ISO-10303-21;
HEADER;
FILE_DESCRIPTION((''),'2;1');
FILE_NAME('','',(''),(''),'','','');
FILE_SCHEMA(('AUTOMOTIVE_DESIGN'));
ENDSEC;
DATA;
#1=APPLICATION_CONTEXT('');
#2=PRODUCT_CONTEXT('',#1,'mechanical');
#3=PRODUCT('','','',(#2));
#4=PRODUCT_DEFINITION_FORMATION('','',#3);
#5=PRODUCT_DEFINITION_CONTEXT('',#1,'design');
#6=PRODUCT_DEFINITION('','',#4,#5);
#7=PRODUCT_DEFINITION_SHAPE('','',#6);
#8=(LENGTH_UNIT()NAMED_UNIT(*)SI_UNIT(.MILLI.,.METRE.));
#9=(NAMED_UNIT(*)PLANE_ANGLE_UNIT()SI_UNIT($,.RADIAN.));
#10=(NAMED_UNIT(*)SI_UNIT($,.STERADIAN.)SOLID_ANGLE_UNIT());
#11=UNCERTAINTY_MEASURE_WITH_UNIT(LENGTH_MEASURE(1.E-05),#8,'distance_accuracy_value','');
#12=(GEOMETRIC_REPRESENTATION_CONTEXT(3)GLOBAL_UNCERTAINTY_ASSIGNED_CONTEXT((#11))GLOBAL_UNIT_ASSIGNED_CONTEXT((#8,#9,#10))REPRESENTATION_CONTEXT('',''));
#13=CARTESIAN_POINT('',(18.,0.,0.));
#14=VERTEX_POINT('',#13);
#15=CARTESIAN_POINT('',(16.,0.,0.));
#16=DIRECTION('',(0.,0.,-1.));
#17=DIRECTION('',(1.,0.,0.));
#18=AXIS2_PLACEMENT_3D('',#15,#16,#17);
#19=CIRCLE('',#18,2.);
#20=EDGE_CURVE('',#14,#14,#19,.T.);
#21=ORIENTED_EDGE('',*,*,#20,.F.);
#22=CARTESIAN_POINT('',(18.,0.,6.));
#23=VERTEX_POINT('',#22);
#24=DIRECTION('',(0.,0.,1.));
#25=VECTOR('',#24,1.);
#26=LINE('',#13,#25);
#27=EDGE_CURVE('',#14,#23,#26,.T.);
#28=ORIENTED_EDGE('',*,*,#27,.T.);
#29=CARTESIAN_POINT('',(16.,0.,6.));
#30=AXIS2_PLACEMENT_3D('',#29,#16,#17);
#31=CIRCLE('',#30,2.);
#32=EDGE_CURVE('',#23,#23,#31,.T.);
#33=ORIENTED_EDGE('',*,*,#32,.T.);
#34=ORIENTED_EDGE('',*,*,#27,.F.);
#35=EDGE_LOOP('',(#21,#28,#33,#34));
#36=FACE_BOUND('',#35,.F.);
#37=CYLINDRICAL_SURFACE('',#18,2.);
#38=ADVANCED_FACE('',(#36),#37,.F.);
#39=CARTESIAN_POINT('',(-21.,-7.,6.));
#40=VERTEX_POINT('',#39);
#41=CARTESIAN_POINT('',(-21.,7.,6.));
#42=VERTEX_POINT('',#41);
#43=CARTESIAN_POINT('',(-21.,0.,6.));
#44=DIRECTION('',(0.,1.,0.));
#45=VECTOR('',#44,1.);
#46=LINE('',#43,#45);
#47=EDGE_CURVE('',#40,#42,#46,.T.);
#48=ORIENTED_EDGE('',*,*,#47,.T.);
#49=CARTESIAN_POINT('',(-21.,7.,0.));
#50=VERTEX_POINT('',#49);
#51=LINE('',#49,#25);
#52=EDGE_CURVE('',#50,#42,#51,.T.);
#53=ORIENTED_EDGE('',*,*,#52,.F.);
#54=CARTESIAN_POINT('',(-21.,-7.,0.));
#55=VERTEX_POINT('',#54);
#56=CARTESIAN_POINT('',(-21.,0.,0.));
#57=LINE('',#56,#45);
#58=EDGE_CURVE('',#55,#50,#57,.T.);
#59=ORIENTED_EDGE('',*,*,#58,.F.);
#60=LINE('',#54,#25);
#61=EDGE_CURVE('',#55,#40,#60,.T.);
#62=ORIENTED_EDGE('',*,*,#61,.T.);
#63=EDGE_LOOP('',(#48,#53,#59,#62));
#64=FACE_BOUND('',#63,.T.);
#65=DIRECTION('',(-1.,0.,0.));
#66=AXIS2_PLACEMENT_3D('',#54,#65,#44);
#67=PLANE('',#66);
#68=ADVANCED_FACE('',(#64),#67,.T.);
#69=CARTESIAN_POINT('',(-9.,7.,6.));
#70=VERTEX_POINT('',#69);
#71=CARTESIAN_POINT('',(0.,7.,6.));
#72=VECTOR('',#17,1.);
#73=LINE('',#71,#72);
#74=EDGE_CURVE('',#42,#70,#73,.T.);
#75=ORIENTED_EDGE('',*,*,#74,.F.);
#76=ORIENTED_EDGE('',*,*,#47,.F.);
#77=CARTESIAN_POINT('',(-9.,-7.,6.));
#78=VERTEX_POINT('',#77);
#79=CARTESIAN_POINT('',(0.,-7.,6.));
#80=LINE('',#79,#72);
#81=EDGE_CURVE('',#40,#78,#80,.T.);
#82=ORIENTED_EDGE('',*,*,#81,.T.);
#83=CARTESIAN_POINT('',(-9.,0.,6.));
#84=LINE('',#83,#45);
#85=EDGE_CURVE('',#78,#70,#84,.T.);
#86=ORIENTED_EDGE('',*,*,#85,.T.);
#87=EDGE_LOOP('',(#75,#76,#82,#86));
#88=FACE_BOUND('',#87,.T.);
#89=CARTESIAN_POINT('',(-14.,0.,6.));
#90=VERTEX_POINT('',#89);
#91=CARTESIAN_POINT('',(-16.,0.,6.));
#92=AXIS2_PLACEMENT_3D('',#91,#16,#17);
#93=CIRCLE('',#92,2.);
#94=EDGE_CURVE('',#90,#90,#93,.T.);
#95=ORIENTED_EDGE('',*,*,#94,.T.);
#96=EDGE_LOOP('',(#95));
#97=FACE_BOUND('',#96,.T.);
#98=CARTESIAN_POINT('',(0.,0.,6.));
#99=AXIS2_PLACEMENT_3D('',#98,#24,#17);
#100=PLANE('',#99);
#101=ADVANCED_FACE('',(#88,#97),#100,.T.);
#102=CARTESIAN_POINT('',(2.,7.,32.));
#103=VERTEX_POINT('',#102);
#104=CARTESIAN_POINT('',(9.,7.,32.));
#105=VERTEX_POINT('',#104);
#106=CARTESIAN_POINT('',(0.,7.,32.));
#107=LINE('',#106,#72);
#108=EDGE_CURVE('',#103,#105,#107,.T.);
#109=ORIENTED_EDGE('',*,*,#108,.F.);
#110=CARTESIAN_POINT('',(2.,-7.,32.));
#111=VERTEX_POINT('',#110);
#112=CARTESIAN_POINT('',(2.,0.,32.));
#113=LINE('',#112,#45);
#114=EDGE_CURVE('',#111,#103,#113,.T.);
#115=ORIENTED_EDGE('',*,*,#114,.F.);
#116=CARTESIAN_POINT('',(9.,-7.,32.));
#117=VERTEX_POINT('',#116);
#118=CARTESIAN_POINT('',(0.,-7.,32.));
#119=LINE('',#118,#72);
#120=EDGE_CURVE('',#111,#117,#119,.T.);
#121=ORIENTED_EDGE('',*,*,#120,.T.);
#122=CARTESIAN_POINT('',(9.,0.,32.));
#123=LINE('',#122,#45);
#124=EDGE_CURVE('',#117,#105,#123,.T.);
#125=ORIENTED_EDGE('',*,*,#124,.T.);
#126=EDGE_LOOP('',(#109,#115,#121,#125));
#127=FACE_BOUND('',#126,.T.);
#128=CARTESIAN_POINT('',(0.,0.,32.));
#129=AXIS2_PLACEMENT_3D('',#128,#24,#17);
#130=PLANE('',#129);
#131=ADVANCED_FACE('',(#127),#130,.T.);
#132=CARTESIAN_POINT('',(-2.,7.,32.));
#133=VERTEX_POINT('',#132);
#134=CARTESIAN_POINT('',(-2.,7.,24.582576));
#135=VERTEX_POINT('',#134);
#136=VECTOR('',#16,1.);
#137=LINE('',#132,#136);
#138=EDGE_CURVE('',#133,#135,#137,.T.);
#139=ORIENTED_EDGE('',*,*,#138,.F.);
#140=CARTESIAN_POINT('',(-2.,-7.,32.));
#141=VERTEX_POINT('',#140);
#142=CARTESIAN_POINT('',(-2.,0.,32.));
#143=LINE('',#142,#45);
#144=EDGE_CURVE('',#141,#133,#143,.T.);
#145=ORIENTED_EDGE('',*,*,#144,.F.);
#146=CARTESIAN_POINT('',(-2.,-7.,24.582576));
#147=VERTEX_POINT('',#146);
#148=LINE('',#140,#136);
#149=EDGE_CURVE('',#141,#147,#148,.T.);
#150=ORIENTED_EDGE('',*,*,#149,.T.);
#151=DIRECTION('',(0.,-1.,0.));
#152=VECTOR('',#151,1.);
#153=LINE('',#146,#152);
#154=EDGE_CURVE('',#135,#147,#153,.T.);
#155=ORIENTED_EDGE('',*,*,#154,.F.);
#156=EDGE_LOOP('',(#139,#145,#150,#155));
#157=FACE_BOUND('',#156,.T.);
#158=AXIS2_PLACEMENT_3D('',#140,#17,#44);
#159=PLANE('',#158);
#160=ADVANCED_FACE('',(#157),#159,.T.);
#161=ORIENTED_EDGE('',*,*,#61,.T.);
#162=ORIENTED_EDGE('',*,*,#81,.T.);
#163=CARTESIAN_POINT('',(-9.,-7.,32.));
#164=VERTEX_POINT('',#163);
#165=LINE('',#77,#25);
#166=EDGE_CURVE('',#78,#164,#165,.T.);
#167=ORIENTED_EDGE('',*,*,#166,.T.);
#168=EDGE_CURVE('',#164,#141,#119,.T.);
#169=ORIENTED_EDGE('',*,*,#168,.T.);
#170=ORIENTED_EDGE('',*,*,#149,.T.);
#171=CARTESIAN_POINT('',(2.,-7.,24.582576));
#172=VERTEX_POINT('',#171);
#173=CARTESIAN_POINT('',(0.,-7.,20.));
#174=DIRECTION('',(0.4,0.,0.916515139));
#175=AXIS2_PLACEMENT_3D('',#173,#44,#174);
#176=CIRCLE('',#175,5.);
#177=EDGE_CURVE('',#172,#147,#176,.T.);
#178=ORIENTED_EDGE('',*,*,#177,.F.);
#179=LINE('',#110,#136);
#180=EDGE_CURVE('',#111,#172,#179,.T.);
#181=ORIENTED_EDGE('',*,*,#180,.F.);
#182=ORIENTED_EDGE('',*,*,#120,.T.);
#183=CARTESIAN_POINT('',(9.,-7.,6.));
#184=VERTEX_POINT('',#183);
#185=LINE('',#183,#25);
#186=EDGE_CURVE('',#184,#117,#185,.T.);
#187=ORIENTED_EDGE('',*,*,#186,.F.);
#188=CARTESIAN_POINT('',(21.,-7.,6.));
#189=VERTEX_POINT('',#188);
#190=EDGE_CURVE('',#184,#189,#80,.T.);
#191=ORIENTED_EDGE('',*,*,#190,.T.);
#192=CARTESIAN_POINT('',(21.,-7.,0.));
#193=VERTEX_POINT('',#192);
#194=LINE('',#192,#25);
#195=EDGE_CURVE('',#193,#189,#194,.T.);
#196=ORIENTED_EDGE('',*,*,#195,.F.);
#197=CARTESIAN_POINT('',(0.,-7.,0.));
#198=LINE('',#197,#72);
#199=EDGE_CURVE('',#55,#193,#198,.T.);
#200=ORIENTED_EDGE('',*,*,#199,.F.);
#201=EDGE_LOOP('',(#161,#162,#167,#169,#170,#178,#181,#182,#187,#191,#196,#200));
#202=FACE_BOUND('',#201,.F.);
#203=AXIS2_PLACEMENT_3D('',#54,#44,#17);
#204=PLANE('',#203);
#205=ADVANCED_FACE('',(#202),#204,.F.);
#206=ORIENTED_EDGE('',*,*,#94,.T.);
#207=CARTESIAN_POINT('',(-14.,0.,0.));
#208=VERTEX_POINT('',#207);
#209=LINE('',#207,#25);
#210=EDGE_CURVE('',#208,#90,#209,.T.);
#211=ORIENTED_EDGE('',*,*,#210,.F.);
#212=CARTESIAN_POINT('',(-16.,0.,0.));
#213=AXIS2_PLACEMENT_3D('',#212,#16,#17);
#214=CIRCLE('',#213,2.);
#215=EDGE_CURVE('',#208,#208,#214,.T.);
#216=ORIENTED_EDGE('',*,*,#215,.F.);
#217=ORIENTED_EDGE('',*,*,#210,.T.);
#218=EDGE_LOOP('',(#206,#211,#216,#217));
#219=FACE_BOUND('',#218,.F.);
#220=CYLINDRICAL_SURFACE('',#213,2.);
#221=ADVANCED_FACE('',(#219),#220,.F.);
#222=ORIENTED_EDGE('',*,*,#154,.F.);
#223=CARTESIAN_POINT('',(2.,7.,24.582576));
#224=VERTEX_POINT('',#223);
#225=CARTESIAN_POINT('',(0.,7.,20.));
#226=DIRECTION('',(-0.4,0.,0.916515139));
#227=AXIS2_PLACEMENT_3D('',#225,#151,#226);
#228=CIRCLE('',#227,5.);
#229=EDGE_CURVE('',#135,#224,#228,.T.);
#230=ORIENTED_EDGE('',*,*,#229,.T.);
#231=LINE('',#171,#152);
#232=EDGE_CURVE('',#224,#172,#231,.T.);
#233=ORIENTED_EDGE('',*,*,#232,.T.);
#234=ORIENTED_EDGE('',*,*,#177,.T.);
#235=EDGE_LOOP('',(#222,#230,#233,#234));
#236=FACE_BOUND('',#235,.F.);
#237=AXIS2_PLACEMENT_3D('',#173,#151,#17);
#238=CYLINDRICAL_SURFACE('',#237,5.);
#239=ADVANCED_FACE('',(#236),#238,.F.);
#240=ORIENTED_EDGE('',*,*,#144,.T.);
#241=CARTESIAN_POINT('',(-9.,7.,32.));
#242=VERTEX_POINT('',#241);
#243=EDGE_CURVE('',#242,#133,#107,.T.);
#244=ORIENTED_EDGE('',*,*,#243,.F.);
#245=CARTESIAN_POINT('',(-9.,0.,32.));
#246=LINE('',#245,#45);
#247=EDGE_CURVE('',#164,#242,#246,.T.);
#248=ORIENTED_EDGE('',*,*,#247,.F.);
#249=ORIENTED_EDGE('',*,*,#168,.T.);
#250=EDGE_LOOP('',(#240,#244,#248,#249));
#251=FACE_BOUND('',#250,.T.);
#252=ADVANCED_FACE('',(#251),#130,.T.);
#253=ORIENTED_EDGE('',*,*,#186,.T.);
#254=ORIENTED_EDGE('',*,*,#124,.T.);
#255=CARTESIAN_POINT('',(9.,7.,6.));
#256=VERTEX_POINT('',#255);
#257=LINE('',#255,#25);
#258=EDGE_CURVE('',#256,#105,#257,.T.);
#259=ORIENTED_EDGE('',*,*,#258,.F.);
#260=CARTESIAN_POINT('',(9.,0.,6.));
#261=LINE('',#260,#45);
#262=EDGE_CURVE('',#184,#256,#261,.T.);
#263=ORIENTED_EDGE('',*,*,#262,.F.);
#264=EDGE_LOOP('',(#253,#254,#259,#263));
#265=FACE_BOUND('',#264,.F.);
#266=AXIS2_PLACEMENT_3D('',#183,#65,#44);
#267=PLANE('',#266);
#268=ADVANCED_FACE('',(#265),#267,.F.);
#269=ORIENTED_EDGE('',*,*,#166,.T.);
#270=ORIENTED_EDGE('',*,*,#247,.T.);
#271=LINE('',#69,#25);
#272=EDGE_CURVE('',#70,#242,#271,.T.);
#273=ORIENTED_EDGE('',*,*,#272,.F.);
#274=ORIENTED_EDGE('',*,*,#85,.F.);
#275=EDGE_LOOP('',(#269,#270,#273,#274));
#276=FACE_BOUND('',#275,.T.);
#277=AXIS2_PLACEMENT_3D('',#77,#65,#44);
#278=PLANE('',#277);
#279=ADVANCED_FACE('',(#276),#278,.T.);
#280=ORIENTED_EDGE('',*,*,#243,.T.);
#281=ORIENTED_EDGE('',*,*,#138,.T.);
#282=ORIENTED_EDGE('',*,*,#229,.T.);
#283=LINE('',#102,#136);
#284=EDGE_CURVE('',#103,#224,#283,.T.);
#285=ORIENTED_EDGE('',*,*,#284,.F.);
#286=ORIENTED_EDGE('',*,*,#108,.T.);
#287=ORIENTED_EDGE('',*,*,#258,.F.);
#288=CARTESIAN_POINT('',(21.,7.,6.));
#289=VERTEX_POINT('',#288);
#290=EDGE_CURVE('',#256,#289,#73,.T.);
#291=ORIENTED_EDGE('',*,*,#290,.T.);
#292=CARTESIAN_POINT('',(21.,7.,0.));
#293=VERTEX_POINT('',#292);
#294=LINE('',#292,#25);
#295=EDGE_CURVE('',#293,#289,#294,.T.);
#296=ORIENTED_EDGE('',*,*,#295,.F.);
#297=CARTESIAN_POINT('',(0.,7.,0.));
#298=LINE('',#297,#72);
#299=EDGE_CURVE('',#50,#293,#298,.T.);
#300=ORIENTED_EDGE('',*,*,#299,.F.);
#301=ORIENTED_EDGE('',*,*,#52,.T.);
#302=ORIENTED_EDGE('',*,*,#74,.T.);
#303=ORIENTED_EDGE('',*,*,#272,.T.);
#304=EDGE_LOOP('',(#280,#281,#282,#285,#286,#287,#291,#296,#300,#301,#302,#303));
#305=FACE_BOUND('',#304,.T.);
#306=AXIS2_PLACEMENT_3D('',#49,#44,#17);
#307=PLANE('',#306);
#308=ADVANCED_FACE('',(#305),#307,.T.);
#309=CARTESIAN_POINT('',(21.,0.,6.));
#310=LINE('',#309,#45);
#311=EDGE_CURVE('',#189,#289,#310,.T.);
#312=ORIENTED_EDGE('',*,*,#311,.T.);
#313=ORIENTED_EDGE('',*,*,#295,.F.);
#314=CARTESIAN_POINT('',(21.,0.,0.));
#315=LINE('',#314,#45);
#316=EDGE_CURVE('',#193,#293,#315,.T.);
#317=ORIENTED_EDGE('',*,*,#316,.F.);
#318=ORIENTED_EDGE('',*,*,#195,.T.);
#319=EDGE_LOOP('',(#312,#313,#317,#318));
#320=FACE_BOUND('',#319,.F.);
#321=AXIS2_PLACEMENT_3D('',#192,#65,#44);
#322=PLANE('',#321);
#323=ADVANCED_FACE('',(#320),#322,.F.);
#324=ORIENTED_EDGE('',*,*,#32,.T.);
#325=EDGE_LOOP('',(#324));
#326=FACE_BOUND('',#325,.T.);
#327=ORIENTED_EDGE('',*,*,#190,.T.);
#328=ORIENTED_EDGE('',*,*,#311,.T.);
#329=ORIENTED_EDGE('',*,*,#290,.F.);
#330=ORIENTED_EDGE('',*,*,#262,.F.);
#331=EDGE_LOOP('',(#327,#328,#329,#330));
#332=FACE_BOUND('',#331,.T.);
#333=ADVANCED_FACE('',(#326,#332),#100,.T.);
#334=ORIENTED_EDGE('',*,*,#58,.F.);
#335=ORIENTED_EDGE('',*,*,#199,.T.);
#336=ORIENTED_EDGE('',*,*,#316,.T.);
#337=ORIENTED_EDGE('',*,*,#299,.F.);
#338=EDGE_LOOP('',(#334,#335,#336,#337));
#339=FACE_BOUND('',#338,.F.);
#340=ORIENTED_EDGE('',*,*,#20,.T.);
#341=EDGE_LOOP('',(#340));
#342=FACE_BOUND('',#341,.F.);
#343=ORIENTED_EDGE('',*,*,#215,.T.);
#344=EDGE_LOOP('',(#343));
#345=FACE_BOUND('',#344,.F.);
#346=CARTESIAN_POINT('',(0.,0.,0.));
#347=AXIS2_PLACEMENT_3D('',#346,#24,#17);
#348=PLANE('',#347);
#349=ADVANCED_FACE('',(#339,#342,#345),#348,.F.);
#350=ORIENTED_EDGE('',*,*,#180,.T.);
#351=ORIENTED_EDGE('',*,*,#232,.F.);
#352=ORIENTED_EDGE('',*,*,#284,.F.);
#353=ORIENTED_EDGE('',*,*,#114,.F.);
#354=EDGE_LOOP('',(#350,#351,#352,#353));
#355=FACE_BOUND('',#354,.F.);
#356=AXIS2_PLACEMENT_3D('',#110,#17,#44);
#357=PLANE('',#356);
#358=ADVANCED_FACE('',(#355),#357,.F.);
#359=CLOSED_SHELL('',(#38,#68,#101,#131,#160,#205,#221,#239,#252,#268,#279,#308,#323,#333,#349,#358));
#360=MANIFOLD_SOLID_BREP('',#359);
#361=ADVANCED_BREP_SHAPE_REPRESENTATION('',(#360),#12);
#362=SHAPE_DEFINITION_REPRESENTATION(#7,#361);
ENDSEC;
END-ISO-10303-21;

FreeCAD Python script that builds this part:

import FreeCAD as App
import Part
import Sketcher

V = App.Vector


def add_polygon(sketch, points):
    """Adds a closed chain of lines whose ends are joined by coincident constraints."""
    first, n = sketch.GeometryCount, len(points)
    for a, b in zip(points, points[1:] + points[:1]):
        sketch.addGeometry(Part.LineSegment(App.Vector(*a, 0), App.Vector(*b, 0)), False)
    for i in range(n):
        sketch.addConstraint(Sketcher.Constraint("Coincident", first + i, 2, first + (i + 1) % n, 1))

doc = App.newDocument("Part")
params = doc.addObject("Spreadsheet::Sheet", "Params")
for row, (alias, value) in enumerate([
    ("sketch1_width", "42 mm"),
    ("sketch1_height", "14 mm"),
    ("pad1_length", "6 mm"),
    ("sketch2_width", "18 mm"),
    ("sketch2_height", "14 mm"),
    ("pad2_length", "26 mm"),
    ("sketch3_diameter", "10 mm"),
    ("sketch4_width", "4 mm"),
    ("sketch4_height", "14 mm"),
    ("pocket2_length", "14 mm"),
    ("sketch5_diameter", "4 mm"),
    ("pocket3_length", "25 mm"),
], start=1):
    params.set(f"A{row}", alias)
    params.set(f"B{row}", "=" + value)
    params.setAlias(f"B{row}", alias)

body = doc.addObject("PartDesign::Body", "Body")

sketch1 = body.newObject("Sketcher::SketchObject", "Sketch")
sketch1.AttachmentSupport = (doc.getObject("XY_Plane"), [""])
sketch1.MapMode = "FlatFace"
add_polygon(sketch1, [(-21, 7), (-21, -7), (21, -7), (21, 7)])
sketch1.addConstraint([
    Sketcher.Constraint("Vertical", 0),
    Sketcher.Constraint("Horizontal", 1),
    Sketcher.Constraint("Vertical", 2),
    Sketcher.Constraint("Horizontal", 3),
    Sketcher.Constraint("Symmetric", 0, 2, 2, 2, -1, 1),
    Sketcher.Constraint("DistanceX", 1, 1, 1, 2, 42.0),
    Sketcher.Constraint("DistanceY", 0, 2, 0, 1, 14.0),
])
sketch1.setExpression("Constraints[9]", "Params.sketch1_width")
sketch1.setExpression("Constraints[10]", "Params.sketch1_height")
pad1 = body.newObject("PartDesign::Pad", "Pad")
pad1.Profile = sketch1
pad1.setExpression("Length", "Params.pad1_length")

sketch2 = body.newObject("Sketcher::SketchObject", "Sketch001")
sketch2.AttachmentSupport = (doc.getObject("XY_Plane"), [""])
sketch2.MapMode = "FlatFace"
sketch2.AttachmentOffset = App.Placement(V(0, 0, 6), App.Rotation())
add_polygon(sketch2, [(-9, 7), (-9, -7), (9, -7), (9, 7)])
sketch2.addConstraint([
    Sketcher.Constraint("Vertical", 0),
    Sketcher.Constraint("Horizontal", 1),
    Sketcher.Constraint("Vertical", 2),
    Sketcher.Constraint("Horizontal", 3),
    Sketcher.Constraint("Symmetric", 0, 2, 2, 2, -1, 1),
    Sketcher.Constraint("DistanceX", 1, 1, 1, 2, 18.0),
    Sketcher.Constraint("DistanceY", 0, 2, 0, 1, 14.0),
])
sketch2.setExpression("Constraints[9]", "Params.sketch2_width")
sketch2.setExpression("Constraints[10]", "Params.sketch2_height")
pad2 = body.newObject("PartDesign::Pad", "Pad001")
pad2.Profile = sketch2
pad2.setExpression("Length", "Params.pad2_length")

sketch3 = body.newObject("Sketcher::SketchObject", "Sketch002")
sketch3.AttachmentSupport = (doc.getObject("XZ_Plane"), [""])
sketch3.MapMode = "FlatFace"
sketch3.AttachmentOffset = App.Placement(V(0, 0, 7), App.Rotation())
sketch3.addGeometry(Part.Circle(V(0, 20, 0), V(0, 0, 1), 5), False)
sketch3.addConstraint([
    Sketcher.Constraint("PointOnObject", 0, 3, -2),
    Sketcher.Constraint("Diameter", 0, 10.0),
    Sketcher.Constraint("DistanceY", -1, 1, 0, 3, 20.0),
])
sketch3.setExpression("Constraints[1]", "Params.sketch3_diameter")
pocket1 = body.newObject("PartDesign::Pocket", "Pocket")
pocket1.Profile = sketch3
pocket1.Type = "ThroughAll"

sketch4 = body.newObject("Sketcher::SketchObject", "Sketch003")
sketch4.AttachmentSupport = (doc.getObject("XY_Plane"), [""])
sketch4.MapMode = "FlatFace"
sketch4.AttachmentOffset = App.Placement(V(0, 0, 32), App.Rotation())
add_polygon(sketch4, [(-2, 7), (-2, -7), (2, -7), (2, 7)])
sketch4.addConstraint([
    Sketcher.Constraint("Vertical", 0),
    Sketcher.Constraint("Horizontal", 1),
    Sketcher.Constraint("Vertical", 2),
    Sketcher.Constraint("Horizontal", 3),
    Sketcher.Constraint("Symmetric", 0, 2, 2, 2, -1, 1),
    Sketcher.Constraint("DistanceX", 1, 1, 1, 2, 4.0),
    Sketcher.Constraint("DistanceY", 0, 2, 0, 1, 14.0),
])
sketch4.setExpression("Constraints[9]", "Params.sketch4_width")
sketch4.setExpression("Constraints[10]", "Params.sketch4_height")
pocket2 = body.newObject("PartDesign::Pocket", "Pocket001")
pocket2.Profile = sketch4
pocket2.setExpression("Length", "Params.pocket2_length")

sketch5 = body.newObject("Sketcher::SketchObject", "Sketch004")
sketch5.AttachmentSupport = (doc.getObject("XY_Plane"), [""])
sketch5.MapMode = "FlatFace"
sketch5.addGeometry([
    Part.Circle(V(16, 0, 0), V(0, 0, 1), 2),
    Part.Circle(V(-16, 0, 0), V(0, 0, 1), 2),
], False)
sketch5.addConstraint([
    Sketcher.Constraint("Equal", 0, 1),
    Sketcher.Constraint("Symmetric", 0, 3, 1, 3, -1, 1),
    Sketcher.Constraint("PointOnObject", 0, 3, -1),
    Sketcher.Constraint("Diameter", 0, 4.0),
    Sketcher.Constraint("DistanceX", -1, 1, 0, 3, 16.0),
])
sketch5.setExpression("Constraints[3]", "Params.sketch5_diameter")
pocket3 = body.newObject("PartDesign::Pocket", "Pocket002")
pocket3.Profile = sketch5
pocket3.setExpression("Length", "Params.pocket3_length")
pocket3.Reversed = True

doc.recompute()
